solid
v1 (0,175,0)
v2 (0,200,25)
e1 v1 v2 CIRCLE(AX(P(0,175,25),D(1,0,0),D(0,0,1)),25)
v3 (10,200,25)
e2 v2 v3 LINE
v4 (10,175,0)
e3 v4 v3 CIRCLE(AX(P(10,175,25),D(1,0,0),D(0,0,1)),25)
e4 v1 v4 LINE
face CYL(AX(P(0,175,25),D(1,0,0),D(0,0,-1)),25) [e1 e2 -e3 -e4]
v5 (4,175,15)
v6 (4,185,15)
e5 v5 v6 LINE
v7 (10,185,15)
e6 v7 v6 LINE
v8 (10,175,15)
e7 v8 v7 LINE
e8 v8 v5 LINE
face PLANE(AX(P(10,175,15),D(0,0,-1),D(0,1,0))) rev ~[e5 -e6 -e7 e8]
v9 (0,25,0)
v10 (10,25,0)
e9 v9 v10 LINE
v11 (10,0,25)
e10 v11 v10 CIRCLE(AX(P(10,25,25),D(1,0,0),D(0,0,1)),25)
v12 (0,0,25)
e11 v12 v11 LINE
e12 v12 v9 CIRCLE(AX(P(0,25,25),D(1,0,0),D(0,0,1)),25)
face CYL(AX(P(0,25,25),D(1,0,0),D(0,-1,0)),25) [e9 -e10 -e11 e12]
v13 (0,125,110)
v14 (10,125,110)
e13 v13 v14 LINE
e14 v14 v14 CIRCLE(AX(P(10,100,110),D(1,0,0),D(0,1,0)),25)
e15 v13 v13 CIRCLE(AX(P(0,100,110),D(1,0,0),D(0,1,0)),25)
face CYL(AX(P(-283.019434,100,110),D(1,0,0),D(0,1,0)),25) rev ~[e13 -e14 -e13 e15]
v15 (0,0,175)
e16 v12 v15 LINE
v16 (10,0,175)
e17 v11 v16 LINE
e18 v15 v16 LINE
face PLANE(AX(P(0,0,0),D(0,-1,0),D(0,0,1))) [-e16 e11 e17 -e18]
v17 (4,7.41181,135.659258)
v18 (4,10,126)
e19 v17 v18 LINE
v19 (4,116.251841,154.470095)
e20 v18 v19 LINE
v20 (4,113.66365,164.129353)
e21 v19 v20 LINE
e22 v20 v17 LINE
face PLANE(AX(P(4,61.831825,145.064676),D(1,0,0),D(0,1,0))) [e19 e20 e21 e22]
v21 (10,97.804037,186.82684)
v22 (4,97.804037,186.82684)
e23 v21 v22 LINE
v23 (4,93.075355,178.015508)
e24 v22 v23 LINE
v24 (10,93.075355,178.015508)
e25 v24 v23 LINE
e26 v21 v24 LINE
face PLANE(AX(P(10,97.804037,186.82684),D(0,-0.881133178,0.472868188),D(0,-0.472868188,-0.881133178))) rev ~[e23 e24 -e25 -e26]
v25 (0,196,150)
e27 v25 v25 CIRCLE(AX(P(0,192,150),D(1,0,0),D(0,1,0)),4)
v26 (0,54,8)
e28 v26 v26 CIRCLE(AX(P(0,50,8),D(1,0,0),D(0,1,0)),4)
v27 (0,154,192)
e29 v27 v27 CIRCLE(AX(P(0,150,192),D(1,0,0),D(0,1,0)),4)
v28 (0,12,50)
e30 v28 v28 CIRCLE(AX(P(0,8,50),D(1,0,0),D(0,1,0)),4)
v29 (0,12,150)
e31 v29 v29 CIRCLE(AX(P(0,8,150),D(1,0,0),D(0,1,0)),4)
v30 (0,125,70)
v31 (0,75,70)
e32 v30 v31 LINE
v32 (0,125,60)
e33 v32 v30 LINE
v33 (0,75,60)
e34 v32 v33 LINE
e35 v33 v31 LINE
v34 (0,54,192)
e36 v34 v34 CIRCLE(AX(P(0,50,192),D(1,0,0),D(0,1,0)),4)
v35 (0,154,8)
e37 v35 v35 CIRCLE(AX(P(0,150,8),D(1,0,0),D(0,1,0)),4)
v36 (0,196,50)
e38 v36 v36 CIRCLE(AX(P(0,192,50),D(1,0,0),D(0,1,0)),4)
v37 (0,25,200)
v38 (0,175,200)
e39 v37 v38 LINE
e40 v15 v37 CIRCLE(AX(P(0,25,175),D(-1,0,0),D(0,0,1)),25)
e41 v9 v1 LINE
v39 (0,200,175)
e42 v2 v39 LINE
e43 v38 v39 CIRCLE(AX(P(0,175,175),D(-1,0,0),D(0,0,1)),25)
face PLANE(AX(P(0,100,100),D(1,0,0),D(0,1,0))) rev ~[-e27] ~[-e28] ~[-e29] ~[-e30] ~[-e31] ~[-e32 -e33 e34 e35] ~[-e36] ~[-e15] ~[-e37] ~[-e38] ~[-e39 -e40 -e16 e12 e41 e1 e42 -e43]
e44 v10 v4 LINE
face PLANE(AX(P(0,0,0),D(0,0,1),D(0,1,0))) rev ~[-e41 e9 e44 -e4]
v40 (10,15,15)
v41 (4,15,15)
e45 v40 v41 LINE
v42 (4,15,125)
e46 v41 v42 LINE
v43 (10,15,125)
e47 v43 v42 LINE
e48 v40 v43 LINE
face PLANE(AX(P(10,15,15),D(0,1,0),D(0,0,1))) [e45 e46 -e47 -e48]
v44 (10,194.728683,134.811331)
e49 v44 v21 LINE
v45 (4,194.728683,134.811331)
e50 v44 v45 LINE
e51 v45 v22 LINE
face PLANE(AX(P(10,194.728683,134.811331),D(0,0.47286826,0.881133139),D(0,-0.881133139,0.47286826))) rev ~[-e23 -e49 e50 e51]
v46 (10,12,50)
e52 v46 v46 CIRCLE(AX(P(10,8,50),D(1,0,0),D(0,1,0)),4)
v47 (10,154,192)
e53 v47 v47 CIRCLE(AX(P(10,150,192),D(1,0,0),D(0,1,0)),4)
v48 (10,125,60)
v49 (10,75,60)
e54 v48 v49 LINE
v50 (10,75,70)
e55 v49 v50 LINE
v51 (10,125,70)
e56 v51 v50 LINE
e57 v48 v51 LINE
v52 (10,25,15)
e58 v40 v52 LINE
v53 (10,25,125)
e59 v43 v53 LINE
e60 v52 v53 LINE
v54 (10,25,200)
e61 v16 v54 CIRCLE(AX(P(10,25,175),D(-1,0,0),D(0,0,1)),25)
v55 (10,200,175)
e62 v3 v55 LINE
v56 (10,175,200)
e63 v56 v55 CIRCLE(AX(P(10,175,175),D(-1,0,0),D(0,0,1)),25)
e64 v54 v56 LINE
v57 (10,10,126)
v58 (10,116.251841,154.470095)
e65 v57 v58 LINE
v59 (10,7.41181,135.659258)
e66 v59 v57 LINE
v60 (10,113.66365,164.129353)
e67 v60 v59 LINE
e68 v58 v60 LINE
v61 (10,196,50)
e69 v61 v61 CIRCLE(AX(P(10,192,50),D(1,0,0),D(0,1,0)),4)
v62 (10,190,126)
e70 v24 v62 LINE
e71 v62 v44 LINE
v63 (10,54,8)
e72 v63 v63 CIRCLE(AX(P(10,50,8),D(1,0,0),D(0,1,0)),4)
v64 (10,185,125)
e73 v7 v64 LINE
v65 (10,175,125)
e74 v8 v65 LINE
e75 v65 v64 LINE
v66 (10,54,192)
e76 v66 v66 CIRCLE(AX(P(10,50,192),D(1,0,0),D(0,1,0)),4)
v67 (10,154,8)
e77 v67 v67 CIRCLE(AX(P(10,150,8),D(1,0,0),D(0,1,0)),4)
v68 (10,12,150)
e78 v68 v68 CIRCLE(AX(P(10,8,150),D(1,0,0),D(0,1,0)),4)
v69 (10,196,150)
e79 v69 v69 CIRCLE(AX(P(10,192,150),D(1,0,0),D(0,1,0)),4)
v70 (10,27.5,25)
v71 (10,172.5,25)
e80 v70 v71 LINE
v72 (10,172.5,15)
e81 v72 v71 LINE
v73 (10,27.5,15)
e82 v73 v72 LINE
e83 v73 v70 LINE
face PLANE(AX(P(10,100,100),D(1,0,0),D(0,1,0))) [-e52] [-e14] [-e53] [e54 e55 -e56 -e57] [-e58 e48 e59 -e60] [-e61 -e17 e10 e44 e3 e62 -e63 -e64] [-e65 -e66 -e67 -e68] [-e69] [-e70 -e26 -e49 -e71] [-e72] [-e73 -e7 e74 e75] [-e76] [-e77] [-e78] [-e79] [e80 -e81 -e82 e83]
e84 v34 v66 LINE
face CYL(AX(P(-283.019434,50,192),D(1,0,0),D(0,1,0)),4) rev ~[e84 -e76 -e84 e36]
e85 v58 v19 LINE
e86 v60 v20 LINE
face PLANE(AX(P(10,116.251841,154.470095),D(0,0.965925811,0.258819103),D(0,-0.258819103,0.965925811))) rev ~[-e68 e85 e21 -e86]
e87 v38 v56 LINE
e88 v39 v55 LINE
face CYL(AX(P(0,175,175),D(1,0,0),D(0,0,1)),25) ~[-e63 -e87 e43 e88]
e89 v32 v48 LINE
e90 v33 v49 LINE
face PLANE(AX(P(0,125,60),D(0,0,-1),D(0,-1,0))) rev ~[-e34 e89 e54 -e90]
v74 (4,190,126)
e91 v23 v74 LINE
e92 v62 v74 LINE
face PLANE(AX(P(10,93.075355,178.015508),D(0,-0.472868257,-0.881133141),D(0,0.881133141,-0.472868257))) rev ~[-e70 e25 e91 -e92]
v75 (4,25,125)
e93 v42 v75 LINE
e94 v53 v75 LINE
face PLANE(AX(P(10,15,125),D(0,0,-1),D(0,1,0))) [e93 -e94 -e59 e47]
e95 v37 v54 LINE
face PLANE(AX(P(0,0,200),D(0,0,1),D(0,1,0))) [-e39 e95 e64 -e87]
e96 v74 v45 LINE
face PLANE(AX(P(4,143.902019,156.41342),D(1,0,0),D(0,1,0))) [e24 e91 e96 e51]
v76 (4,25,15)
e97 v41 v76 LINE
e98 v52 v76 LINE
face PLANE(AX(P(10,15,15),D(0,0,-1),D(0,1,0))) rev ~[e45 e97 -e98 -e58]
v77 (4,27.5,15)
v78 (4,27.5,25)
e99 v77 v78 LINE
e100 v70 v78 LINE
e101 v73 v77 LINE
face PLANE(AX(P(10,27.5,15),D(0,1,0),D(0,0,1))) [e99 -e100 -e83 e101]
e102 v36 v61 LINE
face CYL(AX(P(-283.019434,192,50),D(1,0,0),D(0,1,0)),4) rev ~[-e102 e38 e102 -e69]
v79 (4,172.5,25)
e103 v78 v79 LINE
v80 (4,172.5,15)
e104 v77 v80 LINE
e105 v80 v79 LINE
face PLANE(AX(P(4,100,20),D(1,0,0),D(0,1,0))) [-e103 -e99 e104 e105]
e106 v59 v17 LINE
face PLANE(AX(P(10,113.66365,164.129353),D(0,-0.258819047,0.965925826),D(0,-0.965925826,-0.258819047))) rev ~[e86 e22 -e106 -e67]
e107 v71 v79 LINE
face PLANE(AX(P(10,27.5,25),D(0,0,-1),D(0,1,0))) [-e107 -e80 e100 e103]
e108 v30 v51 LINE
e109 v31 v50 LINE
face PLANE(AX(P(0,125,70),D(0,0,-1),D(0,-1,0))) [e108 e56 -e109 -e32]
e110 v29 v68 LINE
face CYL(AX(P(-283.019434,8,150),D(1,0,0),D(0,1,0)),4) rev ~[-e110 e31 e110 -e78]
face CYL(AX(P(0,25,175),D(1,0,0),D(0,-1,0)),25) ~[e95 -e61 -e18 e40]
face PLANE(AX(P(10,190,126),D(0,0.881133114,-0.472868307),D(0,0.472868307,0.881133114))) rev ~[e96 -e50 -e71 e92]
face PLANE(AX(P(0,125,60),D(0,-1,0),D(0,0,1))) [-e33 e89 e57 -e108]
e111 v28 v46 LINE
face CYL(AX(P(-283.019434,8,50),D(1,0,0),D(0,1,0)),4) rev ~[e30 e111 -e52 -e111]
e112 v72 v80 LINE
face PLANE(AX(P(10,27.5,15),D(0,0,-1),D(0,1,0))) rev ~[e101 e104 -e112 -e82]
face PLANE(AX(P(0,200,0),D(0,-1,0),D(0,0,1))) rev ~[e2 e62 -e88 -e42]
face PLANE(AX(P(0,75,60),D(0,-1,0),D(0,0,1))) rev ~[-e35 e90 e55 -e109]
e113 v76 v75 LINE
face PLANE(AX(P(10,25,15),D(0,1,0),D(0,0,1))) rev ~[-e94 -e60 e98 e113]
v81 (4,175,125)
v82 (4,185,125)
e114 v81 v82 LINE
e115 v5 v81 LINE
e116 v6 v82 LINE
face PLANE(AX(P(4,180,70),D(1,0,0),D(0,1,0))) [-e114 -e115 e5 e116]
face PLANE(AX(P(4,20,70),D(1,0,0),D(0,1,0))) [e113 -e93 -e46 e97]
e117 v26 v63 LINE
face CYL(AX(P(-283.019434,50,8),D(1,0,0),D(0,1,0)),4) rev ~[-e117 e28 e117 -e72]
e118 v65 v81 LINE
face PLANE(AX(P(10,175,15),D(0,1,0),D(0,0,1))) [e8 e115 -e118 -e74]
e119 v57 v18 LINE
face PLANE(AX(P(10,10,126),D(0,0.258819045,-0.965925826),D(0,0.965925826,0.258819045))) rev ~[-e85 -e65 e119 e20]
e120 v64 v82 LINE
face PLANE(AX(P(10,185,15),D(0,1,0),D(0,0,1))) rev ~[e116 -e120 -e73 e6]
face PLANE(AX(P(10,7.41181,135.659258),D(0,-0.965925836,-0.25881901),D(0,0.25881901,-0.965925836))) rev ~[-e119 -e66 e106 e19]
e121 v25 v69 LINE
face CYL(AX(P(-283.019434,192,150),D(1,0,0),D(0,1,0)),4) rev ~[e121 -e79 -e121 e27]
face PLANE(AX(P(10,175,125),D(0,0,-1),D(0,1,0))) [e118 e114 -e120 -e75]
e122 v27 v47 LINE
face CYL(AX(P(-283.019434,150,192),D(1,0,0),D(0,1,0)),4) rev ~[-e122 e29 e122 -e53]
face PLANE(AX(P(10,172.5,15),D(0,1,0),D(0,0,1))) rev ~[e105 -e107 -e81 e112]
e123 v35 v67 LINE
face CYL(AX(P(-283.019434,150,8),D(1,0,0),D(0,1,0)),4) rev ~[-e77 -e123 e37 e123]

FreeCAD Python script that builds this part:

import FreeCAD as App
import Part
import Sketcher
Q = App.Units.Quantity


def edges_at(feature, points):
    """Names of the edges that pass closest to the given points."""
    edges = feature.Shape.Edges
    near = lambda p: min(range(len(edges)), key=lambda i: edges[i].distToShape(Part.Vertex(*p))[0])
    return sorted({f"Edge{near(p) + 1}" for p in points})

doc = App.newDocument("Part")
body = doc.addObject("PartDesign::Body", "Body")

# Sketch on YZ plane
sketch1 = body.newObject("Sketcher::SketchObject", "Sketch")
sketch1.AttachmentSupport = (doc.getObject("YZ_Plane"), [""])
sketch1.MapMode = "FlatFace"
sketch1.addGeometry(Part.LineSegment(App.Vector(0, 200, 0), App.Vector(0, 0, 0)), False)
sketch1.addGeometry(Part.LineSegment(App.Vector(0, 0, 0), App.Vector(200, 0, 0)), False)
sketch1.addGeometry(Part.LineSegment(App.Vector(200, 0, 0), App.Vector(200, 200, 0)), False)
sketch1.addGeometry(Part.LineSegment(App.Vector(200, 200, 0), App.Vector(0, 200, 0)), False)
sketch1.addConstraint(Sketcher.Constraint("Coincident", 0, 2, 1, 1))
sketch1.addConstraint(Sketcher.Constraint("Coincident", 1, 2, 2, 1))
sketch1.addConstraint(Sketcher.Constraint("Coincident", 2, 2, 3, 1))
sketch1.addConstraint(Sketcher.Constraint("Coincident", 3, 2, 0, 1))
sketch1.addConstraint(Sketcher.Constraint("Vertical", 0))
sketch1.addConstraint(Sketcher.Constraint("Horizontal", 1))
sketch1.addConstraint(Sketcher.Constraint("Vertical", 2))
sketch1.addConstraint(Sketcher.Constraint("Horizontal", 3))
sketch1.addConstraint(Sketcher.Constraint("Coincident", 0, 2, -1, 1))
sketch1.addConstraint(Sketcher.Constraint("Equal", 3, 0))
sketch1.addConstraint(Sketcher.Constraint("DistanceX", 1, 1, 1, 2, 200.0))
pad1 = body.newObject("PartDesign::Pad", "Pad")
pad1.Profile = sketch1
pad1.Length = 10

# Sketch on YZ plane
sketch2 = body.newObject("Sketcher::SketchObject", "Sketch001")
sketch2.AttachmentSupport = (doc.getObject("YZ_Plane"), [""])
sketch2.MapMode = "FlatFace"
sketch2.AttachmentOffset = App.Placement(App.Vector(0, 0, 10), App.Rotation())
sketch2.addGeometry(Part.LineSegment(App.Vector(114, 164, 0), App.Vector(7, 136, 0)), False)
sketch2.addGeometry(Part.LineSegment(App.Vector(7, 136, 0), App.Vector(10, 126, 0)), False)
sketch2.addGeometry(Part.LineSegment(App.Vector(10, 126, 0), App.Vector(116, 154, 0)), False)
sketch2.addGeometry(Part.LineSegment(App.Vector(116, 154, 0), App.Vector(114, 164, 0)), False)
sketch2.addGeometry(Part.LineSegment(App.Vector(98, 187, 0), App.Vector(93, 178, 0)), False)
sketch2.addGeometry(Part.LineSegment(App.Vector(93, 178, 0), App.Vector(190, 126, 0)), False)
sketch2.addGeometry(Part.LineSegment(App.Vector(190, 126, 0), App.Vector(195, 135, 0)), False)
sketch2.addGeometry(Part.LineSegment(App.Vector(195, 135, 0), App.Vector(98, 187, 0)), False)
sketch2.addGeometry(Part.LineSegment(App.Vector(15, 125, 0), App.Vector(15, 15, 0)), False)
sketch2.addGeometry(Part.LineSegment(App.Vector(15, 15, 0), App.Vector(25, 15, 0)), False)
sketch2.addGeometry(Part.LineSegment(App.Vector(25, 15, 0), App.Vector(25, 125, 0)), False)
sketch2.addGeometry(Part.LineSegment(App.Vector(25, 125, 0), App.Vector(15, 125, 0)), False)
sketch2.addGeometry(Part.LineSegment(App.Vector(28, 25, 0), App.Vector(28, 15, 0)), False)
sketch2.addGeometry(Part.LineSegment(App.Vector(28, 15, 0), App.Vector(172, 15, 0)), False)
sketch2.addGeometry(Part.LineSegment(App.Vector(172, 15, 0), App.Vector(172, 25, 0)), False)
sketch2.addGeometry(Part.LineSegment(App.Vector(172, 25, 0), App.Vector(28, 25, 0)), False)
sketch2.addGeometry(Part.LineSegment(App.Vector(175, 125, 0), App.Vector(175, 15, 0)), False)
sketch2.addGeometry(Part.LineSegment(App.Vector(175, 15, 0), App.Vector(185, 15, 0)), False)
sketch2.addGeometry(Part.LineSegment(App.Vector(185, 15, 0), App.Vector(185, 125, 0)), False)
sketch2.addGeometry(Part.LineSegment(App.Vector(185, 125, 0), App.Vector(175, 125, 0)), False)
sketch2.addConstraint(Sketcher.Constraint("Coincident", 0, 2, 1, 1))
sketch2.addConstraint(Sketcher.Constraint("Coincident", 1, 2, 2, 1))
sketch2.addConstraint(Sketcher.Constraint("Coincident", 2, 2, 3, 1))
sketch2.addConstraint(Sketcher.Constraint("Coincident", 3, 2, 0, 1))
sketch2.addConstraint(Sketcher.Constraint("Coincident", 4, 2, 5, 1))
sketch2.addConstraint(Sketcher.Constraint("Coincident", 5, 2, 6, 1))
sketch2.addConstraint(Sketcher.Constraint("Coincident", 6, 2, 7, 1))
sketch2.addConstraint(Sketcher.Constraint("Coincident", 7, 2, 4, 1))
sketch2.addConstraint(Sketcher.Constraint("Coincident", 8, 2, 9, 1))
sketch2.addConstraint(Sketcher.Constraint("Coincident", 9, 2, 10, 1))
sketch2.addConstraint(Sketcher.Constraint("Coincident", 10, 2, 11, 1))
sketch2.addConstraint(Sketcher.Constraint("Coincident", 11, 2, 8, 1))
sketch2.addConstraint(Sketcher.Constraint("Coincident", 12, 2, 13, 1))
sketch2.addConstraint(Sketcher.Constraint("Coincident", 13, 2, 14, 1))
sketch2.addConstraint(Sketcher.Constraint("Coincident", 14, 2, 15, 1))
sketch2.addConstraint(Sketcher.Constraint("Coincident", 15, 2, 12, 1))
sketch2.addConstraint(Sketcher.Constraint("Coincident", 16, 2, 17, 1))
sketch2.addConstraint(Sketcher.Constraint("Coincident", 17, 2, 18, 1))
sketch2.addConstraint(Sketcher.Constraint("Coincident", 18, 2, 19, 1))
sketch2.addConstraint(Sketcher.Constraint("Coincident", 19, 2, 16, 1))
sketch2.addConstraint(Sketcher.Constraint("Vertical", 8))
sketch2.addConstraint(Sketcher.Constraint("Horizontal", 9))
sketch2.addConstraint(Sketcher.Constraint("Vertical", 10))
sketch2.addConstraint(Sketcher.Constraint("Horizontal", 11))
sketch2.addConstraint(Sketcher.Constraint("Vertical", 12))
sketch2.addConstraint(Sketcher.Constraint("Horizontal", 13))
sketch2.addConstraint(Sketcher.Constraint("Vertical", 14))
sketch2.addConstraint(Sketcher.Constraint("Horizontal", 15))
sketch2.addConstraint(Sketcher.Constraint("Vertical", 16))
sketch2.addConstraint(Sketcher.Constraint("Horizontal", 17))
sketch2.addConstraint(Sketcher.Constraint("Vertical", 18))
sketch2.addConstraint(Sketcher.Constraint("Horizontal", 19))
sketch2.addConstraint(Sketcher.Constraint("Perpendicular", 0, 1))
sketch2.addConstraint(Sketcher.Constraint("Perpendicular", 1, 2))
sketch2.addConstraint(Sketcher.Constraint("Perpendicular", 2, 3))
sketch2.addConstraint(Sketcher.Constraint("Perpendicular", 4, 5))
sketch2.addConstraint(Sketcher.Constraint("Perpendicular", 5, 6))
sketch2.addConstraint(Sketcher.Constraint("Perpendicular", 6, 7))
sketch2.addConstraint(Sketcher.Constraint("Horizontal", 1, 2, 5, 2))
sketch2.addConstraint(Sketcher.Constraint("Horizontal", 9, 2, 12, 2))
sketch2.addConstraint(Sketcher.Constraint("Horizontal", 13, 2, 16, 2))
sketch2.addConstraint(Sketcher.Constraint("Horizontal", 11, 2, 18, 2))
sketch2.addConstraint(Sketcher.Constraint("Equal", 11, 17))
sketch2.addConstraint(Sketcher.Constraint("Equal", 19, 12))
sketch2.addConstraint(Sketcher.Constraint("Equal", 3, 4))
sketch2.addConstraint(Sketcher.Constraint("Equal", 2, 5))
sketch2.addConstraint(Sketcher.Constraint("DistanceX", 9, 1, 9, 2, 10.0))
sketch2.addConstraint(Sketcher.Constraint("DistanceX", 13, 1, 13, 2, 145.0))
sketch2.addConstraint(Sketcher.Constraint("DistanceY", 8, 2, 8, 1, 110.0))
sketch2.addConstraint(Sketcher.Constraint("Angle", 0, Q("-165 deg")))
sketch2.addConstraint(Sketcher.Constraint("Distance", 0, 109.999999))
sketch2.addConstraint(Sketcher.Constraint("Distance", 1, 10.0))
sketch2.addConstraint(Sketcher.Constraint("DistanceX", -1, 1, 1, 2, 10.0))
sketch2.addConstraint(Sketcher.Constraint("DistanceY", -1, 1, 1, 2, 126.0))
sketch2.addConstraint(Sketcher.Constraint("DistanceX", -1, 1, 5, 2, 190.0))
sketch2.addConstraint(Sketcher.Constraint("DistanceX", -1, 1, 8, 2, 15.0))
sketch2.addConstraint(Sketcher.Constraint("DistanceY", -1, 1, 8, 2, 15.0))
sketch2.addConstraint(Sketcher.Constraint("DistanceX", -1, 1, 16, 2, 175.0))
sketch2.addConstraint(Sketcher.Constraint("DistanceX", -1, 1, 12, 2, 27.5))
sketch2.addConstraint(Sketcher.Constraint("DistanceY", -1, 1, 4, 2, 178.015508))
pocket1 = body.newObject("PartDesign::Pocket", "Pocket")
pocket1.Profile = sketch2
pocket1.Length = 6

# Sketch on YZ plane
sketch3 = body.newObject("Sketcher::SketchObject", "Sketch002")
sketch3.AttachmentSupport = (doc.getObject("YZ_Plane"), [""])
sketch3.MapMode = "FlatFace"
sketch3.addGeometry(Part.Circle(App.Vector(100, 110, 0), App.Vector(0, 0, 1), 25), False)
sketch3.addConstraint(Sketcher.Constraint("Diameter", 0, 50.0))
sketch3.addConstraint(Sketcher.Constraint("DistanceX", -1, 1, 0, 3, 100.0))
sketch3.addConstraint(Sketcher.Constraint("DistanceY", -1, 1, 0, 3, 110.0))
doc.recompute()
hole = body.newObject("PartDesign::Hole", "Hole")
hole.Profile = sketch3
hole.ThreadType = "None"
hole.Diameter = 50
hole.DepthType = "ThroughAll"
hole.Reversed = True

# Sketch on YZ plane
sketch4 = body.newObject("Sketcher::SketchObject", "Sketch003")
sketch4.AttachmentSupport = (doc.getObject("YZ_Plane"), [""])
sketch4.MapMode = "FlatFace"
sketch4.addGeometry(Part.LineSegment(App.Vector(125, 70, 0), App.Vector(125, 60, 0)), False)
sketch4.addGeometry(Part.LineSegment(App.Vector(125, 60, 0), App.Vector(75, 60, 0)), False)
sketch4.addGeometry(Part.LineSegment(App.Vector(75, 60, 0), App.Vector(75, 70, 0)), False)
sketch4.addGeometry(Part.LineSegment(App.Vector(75, 70, 0), App.Vector(125, 70, 0)), False)
sketch4.addConstraint(Sketcher.Constraint("Coincident", 0, 2, 1, 1))
sketch4.addConstraint(Sketcher.Constraint("Coincident", 1, 2, 2, 1))
sketch4.addConstraint(Sketcher.Constraint("Coincident", 2, 2, 3, 1))
sketch4.addConstraint(Sketcher.Constraint("Coincident", 3, 2, 0, 1))
sketch4.addConstraint(Sketcher.Constraint("Vertical", 0))
sketch4.addConstraint(Sketcher.Constraint("Horizontal", 1))
sketch4.addConstraint(Sketcher.Constraint("Vertical", 2))
sketch4.addConstraint(Sketcher.Constraint("Horizontal", 3))
sketch4.addConstraint(Sketcher.Constraint("DistanceX", 1, 2, 1, 1, 50.0))
sketch4.addConstraint(Sketcher.Constraint("DistanceY", 0, 2, 0, 1, 10.0))
sketch4.addConstraint(Sketcher.Constraint("DistanceX", -1, 1, 0, 2, 125.0))
sketch4.addConstraint(Sketcher.Constraint("DistanceY", -1, 1, 0, 2, 60.0))
pocket2 = body.newObject("PartDesign::Pocket", "Pocket001")
pocket2.Profile = sketch4
pocket2.Type = "ThroughAll"
pocket2.Reversed = True

# Sketch on YZ plane
sketch5 = body.newObject("Sketcher::SketchObject", "Sketch004")
sketch5.AttachmentSupport = (doc.getObject("YZ_Plane"), [""])
sketch5.MapMode = "FlatFace"
sketch5.addGeometry(Part.Circle(App.Vector(150, 192, 0), App.Vector(0, 0, 1), 4), False)
sketch5.addGeometry(Part.Circle(App.Vector(192, 150, 0), App.Vector(0, 0, 1), 4), False)
sketch5.addGeometry(Part.Circle(App.Vector(50, 192, 0), App.Vector(0, 0, 1), 4), False)
sketch5.addGeometry(Part.Circle(App.Vector(8, 150, 0), App.Vector(0, 0, 1), 4), False)
sketch5.addGeometry(Part.Circle(App.Vector(50, 8, 0), App.Vector(0, 0, 1), 4), False)
sketch5.addGeometry(Part.Circle(App.Vector(8, 50, 0), App.Vector(0, 0, 1), 4), False)
sketch5.addGeometry(Part.Circle(App.Vector(150, 8, 0), App.Vector(0, 0, 1), 4), False)
sketch5.addGeometry(Part.Circle(App.Vector(192, 50, 0), App.Vector(0, 0, 1), 4), False)
sketch5.addConstraint(Sketcher.Constraint("Equal", 0, 1))
sketch5.addConstraint(Sketcher.Constraint("Equal", 1, 2))
sketch5.addConstraint(Sketcher.Constraint("Equal", 2, 3))
sketch5.addConstraint(Sketcher.Constraint("Equal", 3, 4))
sketch5.addConstraint(Sketcher.Constraint("Equal", 4, 5))
sketch5.addConstraint(Sketcher.Constraint("Equal", 5, 6))
sketch5.addConstraint(Sketcher.Constraint("Equal", 6, 7))
sketch5.addConstraint(Sketcher.Constraint("Horizontal", 0, 3, 2, 3))
sketch5.addConstraint(Sketcher.Constraint("Horizontal", 1, 3, 3, 3))
sketch5.addConstraint(Sketcher.Constraint("Horizontal", 4, 3, 6, 3))
sketch5.addConstraint(Sketcher.Constraint("Horizontal", 5, 3, 7, 3))
sketch5.addConstraint(Sketcher.Constraint("Vertical", 2, 3, 4, 3))
sketch5.addConstraint(Sketcher.Constraint("Vertical", 3, 3, 5, 3))
sketch5.addConstraint(Sketcher.Constraint("Vertical", 0, 3, 6, 3))
sketch5.addConstraint(Sketcher.Constraint("Vertical", 1, 3, 7, 3))
sketch5.addConstraint(Sketcher.Constraint("Diameter", 0, 8.0))
sketch5.addConstraint(Sketcher.Constraint("DistanceX", -1, 1, 0, 3, 150.0))
sketch5.addConstraint(Sketcher.Constraint("DistanceY", -1, 1, 0, 3, 192.0))
sketch5.addConstraint(Sketcher.Constraint("DistanceX", -1, 1, 1, 3, 192.0))
sketch5.addConstraint(Sketcher.Constraint("DistanceY", -1, 1, 1, 3, 150.0))
sketch5.addConstraint(Sketcher.Constraint("DistanceX", -1, 1, 2, 3, 50.0))
sketch5.addConstraint(Sketcher.Constraint("DistanceX", -1, 1, 3, 3, 8.0))
sketch5.addConstraint(Sketcher.Constraint("DistanceY", -1, 1, 4, 3, 8.0))
sketch5.addConstraint(Sketcher.Constraint("DistanceY", -1, 1, 5, 3, 50.0))
doc.recompute()
hole2 = body.newObject("PartDesign::Hole", "Hole001")
hole2.Profile = sketch5
hole2.ThreadType = "None"
hole2.Diameter = 8
hole2.DepthType = "ThroughAll"
hole2.Reversed = True
doc.recompute()

fillet = body.newObject("PartDesign::Fillet", "Fillet")
fillet.Base = (hole2, edges_at(hole2, [
    (5, 0, 200),
    (5, 0, 0),
    (5, 200, 200),
    (5, 200, 0),
]))
fillet.Radius = 25

doc.recompute()
